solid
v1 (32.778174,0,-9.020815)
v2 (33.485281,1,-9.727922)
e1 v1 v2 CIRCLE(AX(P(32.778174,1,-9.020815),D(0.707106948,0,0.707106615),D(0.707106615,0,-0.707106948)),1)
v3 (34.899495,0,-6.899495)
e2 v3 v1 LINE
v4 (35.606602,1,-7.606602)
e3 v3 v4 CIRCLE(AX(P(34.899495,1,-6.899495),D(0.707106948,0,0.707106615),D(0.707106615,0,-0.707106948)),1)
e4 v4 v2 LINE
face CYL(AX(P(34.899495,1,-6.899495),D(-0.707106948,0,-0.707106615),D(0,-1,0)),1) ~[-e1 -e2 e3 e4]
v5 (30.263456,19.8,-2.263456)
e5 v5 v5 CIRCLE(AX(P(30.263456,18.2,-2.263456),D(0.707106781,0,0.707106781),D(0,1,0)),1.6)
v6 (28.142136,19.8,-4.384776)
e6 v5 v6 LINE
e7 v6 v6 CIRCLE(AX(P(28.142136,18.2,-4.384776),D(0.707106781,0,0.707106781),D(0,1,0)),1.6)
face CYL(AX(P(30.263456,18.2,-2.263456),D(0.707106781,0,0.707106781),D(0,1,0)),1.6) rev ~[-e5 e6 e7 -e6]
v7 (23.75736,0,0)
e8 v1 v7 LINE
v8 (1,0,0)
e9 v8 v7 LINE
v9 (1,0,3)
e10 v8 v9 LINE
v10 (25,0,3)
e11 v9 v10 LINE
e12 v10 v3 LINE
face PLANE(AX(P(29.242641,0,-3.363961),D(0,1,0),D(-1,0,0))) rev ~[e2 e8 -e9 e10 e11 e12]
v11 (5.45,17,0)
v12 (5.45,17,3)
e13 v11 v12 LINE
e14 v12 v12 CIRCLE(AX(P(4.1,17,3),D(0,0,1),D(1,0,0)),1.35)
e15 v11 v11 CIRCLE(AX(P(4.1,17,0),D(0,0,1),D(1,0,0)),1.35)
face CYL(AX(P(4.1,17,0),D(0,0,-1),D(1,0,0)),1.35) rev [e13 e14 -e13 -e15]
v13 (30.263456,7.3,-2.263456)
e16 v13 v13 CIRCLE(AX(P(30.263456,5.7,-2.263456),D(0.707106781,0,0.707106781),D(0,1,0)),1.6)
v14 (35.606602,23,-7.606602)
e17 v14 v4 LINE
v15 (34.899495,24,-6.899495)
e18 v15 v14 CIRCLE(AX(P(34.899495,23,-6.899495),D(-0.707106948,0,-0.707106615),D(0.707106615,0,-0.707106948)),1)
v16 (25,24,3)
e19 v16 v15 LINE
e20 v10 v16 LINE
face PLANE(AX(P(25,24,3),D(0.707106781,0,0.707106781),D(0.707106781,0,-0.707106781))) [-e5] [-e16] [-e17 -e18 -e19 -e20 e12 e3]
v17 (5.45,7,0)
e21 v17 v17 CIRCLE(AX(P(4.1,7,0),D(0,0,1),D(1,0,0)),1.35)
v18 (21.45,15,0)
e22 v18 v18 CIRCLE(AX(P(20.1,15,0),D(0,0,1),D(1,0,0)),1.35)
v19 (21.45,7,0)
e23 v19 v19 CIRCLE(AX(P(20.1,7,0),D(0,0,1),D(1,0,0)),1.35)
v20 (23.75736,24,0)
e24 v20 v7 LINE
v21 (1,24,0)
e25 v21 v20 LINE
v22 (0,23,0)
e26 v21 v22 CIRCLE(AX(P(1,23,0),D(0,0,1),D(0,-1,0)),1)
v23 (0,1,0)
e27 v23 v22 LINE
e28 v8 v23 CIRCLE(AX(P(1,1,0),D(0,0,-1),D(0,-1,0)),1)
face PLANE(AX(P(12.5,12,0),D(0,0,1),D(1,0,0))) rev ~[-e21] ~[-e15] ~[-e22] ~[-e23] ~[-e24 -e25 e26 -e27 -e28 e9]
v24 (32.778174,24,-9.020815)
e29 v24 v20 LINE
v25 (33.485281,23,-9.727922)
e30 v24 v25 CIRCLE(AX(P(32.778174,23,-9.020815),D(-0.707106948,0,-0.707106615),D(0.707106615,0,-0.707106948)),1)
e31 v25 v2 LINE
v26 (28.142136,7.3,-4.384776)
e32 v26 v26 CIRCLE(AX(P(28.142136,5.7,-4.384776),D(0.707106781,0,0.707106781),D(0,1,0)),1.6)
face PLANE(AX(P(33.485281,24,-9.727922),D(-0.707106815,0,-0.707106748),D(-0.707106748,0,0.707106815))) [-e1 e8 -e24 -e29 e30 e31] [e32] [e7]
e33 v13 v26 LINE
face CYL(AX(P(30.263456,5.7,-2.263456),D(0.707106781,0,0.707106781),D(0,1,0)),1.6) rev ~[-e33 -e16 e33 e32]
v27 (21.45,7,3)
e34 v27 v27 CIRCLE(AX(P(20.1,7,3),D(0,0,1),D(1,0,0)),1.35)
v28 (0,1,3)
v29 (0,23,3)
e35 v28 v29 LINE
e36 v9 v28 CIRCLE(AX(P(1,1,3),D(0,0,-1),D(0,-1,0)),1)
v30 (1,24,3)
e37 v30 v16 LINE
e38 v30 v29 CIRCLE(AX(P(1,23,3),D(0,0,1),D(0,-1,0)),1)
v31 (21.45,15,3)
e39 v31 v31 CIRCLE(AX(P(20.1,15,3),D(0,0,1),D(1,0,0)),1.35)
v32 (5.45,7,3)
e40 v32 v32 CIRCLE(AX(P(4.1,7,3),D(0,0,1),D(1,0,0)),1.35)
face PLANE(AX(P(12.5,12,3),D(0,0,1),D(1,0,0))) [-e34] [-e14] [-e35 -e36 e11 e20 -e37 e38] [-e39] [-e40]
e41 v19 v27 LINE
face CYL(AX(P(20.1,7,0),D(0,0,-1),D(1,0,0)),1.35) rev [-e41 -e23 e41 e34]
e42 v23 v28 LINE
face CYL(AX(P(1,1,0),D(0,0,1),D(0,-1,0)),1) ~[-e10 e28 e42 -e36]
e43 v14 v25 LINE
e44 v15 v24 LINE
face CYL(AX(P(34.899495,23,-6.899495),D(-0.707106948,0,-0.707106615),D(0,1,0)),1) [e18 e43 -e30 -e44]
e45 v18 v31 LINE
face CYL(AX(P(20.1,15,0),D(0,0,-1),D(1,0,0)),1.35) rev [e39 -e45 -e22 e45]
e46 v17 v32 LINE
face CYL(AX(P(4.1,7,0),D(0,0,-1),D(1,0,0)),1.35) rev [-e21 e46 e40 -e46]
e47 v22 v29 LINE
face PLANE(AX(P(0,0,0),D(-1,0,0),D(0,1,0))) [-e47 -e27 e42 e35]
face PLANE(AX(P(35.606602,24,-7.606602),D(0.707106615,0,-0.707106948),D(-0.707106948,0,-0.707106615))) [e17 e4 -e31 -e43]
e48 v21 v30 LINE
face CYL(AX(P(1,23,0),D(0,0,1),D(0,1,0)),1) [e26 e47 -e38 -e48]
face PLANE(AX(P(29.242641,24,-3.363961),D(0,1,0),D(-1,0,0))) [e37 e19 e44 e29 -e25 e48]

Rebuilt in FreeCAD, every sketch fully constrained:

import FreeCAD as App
import Part
import Sketcher
Q = App.Units.Quantity


def edges_at(feature, points):
    """Names of the edges that pass closest to the given points."""
    edges = feature.Shape.Edges
    near = lambda p: min(range(len(edges)), key=lambda i: edges[i].distToShape(Part.Vertex(*p))[0])
    return sorted({f"Edge{near(p) + 1}" for p in points})


def add_polygon(sketch, points):
    """Adds a closed chain of lines whose ends are joined by coincident constraints."""
    first, n = sketch.GeometryCount, len(points)
    for a, b in zip(points, points[1:] + points[:1]):
        sketch.addGeometry(Part.LineSegment(App.Vector(*a, 0), App.Vector(*b, 0)), False)
    for i in range(n):
        sketch.addConstraint(Sketcher.Constraint("Coincident", first + i, 2, first + (i + 1) % n, 1))

doc = App.newDocument("Part")
params = doc.addObject("Spreadsheet::Sheet", "Params")
for row, (alias, value) in enumerate([
    ("sketch1_diameter", "2.7 mm"),
    ("sketch1_width", "25 mm"),
    ("sketch1_height", "24 mm"),
    ("pad1_length", "3 mm"),
    ("sketch2_length", "15 mm"),
    ("sketch2_length2", "3 mm"),
    ("pad2_length", "24 mm"),
    ("sketch3_diameter", "3.2 mm"),
    ("fillet_radius", "1 mm"),
], start=1):
    params.set(f"A{row}", alias)
    params.set(f"B{row}", "=" + value)
    params.setAlias(f"B{row}", alias)

body = doc.addObject("PartDesign::Body", "Body")

# Sketch on XY plane
sketch1 = doc.addObject("Sketcher::SketchObject", "Sketch")
body.addObject(sketch1)
sketch1.AttachmentSupport = (doc.XY_Plane, [""])
sketch1.MapMode = "FlatFace"
add_polygon(sketch1, [(0, 24), (0, 0), (25, 0), (25, 24)])  # lines 0-3
sketch1.addGeometry(Part.Circle(App.Vector(4.1, 7, 0), App.Vector(0, 0, 1), 1.4), False)  # 4
sketch1.addGeometry(Part.Circle(App.Vector(20.1, 7, 0), App.Vector(0, 0, 1), 1.4), False)  # 5
sketch1.addGeometry(Part.Circle(App.Vector(4.1, 17, 0), App.Vector(0, 0, 1), 1.4), False)  # 6
sketch1.addGeometry(Part.Circle(App.Vector(20.1, 15, 0), App.Vector(0, 0, 1), 1.4), False)  # 7
sketch1.addConstraint(Sketcher.Constraint("Vertical", 0))
sketch1.addConstraint(Sketcher.Constraint("Horizontal", 1))
sketch1.addConstraint(Sketcher.Constraint("Vertical", 2))
sketch1.addConstraint(Sketcher.Constraint("Horizontal", 3))
sketch1.addConstraint(Sketcher.Constraint("Coincident", 0, 2, -1, 1))
sketch1.addConstraint(Sketcher.Constraint("Equal", 4, 5))
sketch1.addConstraint(Sketcher.Constraint("Equal", 5, 6))
sketch1.addConstraint(Sketcher.Constraint("Equal", 6, 7))
sketch1.addConstraint(Sketcher.Constraint("Horizontal", 4, 3, 5, 3))
sketch1.addConstraint(Sketcher.Constraint("Vertical", 4, 3, 6, 3))
sketch1.addConstraint(Sketcher.Constraint("Vertical", 5, 3, 7, 3))
sketch1.addConstraint(Sketcher.Constraint("Diameter", 4, Q("2.7 mm")))
sketch1.addConstraint(Sketcher.Constraint("DistanceX", 1, 1, 1, 2, Q("25 mm")))
sketch1.addConstraint(Sketcher.Constraint("DistanceY", 0, 2, 0, 1, Q("24 mm")))
sketch1.addConstraint(Sketcher.Constraint("DistanceY", -1, 1, 4, 3, Q("7 mm")))
sketch1.addConstraint(Sketcher.Constraint("DistanceY", -1, 1, 6, 3, Q("17 mm")))
sketch1.addConstraint(Sketcher.Constraint("DistanceY", -1, 1, 7, 3, Q("15 mm")))
sketch1.addConstraint(Sketcher.Constraint("DistanceX", 4, 3, 5, 3, Q("16 mm")))
sketch1.addConstraint(Sketcher.Constraint("DistanceX", -1, 1, 4, 3, Q("4.1 mm")))
sketch1.setExpression("Constraints[15]", "Params.sketch1_diameter")
sketch1.setExpression("Constraints[16]", "Params.sketch1_width")
sketch1.setExpression("Constraints[17]", "Params.sketch1_height")
pad1 = doc.addObject("PartDesign::Pad", "Pad")
body.addObject(pad1)
pad1.Profile = sketch1
pad1.setExpression("Length", "Params.pad1_length")

# Sketch on XZ plane
sketch2 = doc.addObject("Sketcher::SketchObject", "Sketch001")
body.addObject(sketch2)
sketch2.AttachmentSupport = (doc.XZ_Plane, [""])
sketch2.MapMode = "FlatFace"
sketch2.AttachmentOffset = App.Placement(App.Vector(0, 0, -24), App.Rotation())
add_polygon(sketch2, [(25, 3), (35.6, -7.6), (33.5, -9.7), (22.9, 0.9)])  # lines 0-3
sketch2.addConstraint(Sketcher.Constraint("Perpendicular", 0, 1))
sketch2.addConstraint(Sketcher.Constraint("Perpendicular", 1, 2))
sketch2.addConstraint(Sketcher.Constraint("Perpendicular", 2, 3))
sketch2.addConstraint(Sketcher.Constraint("Angle", 0, Q("-45 deg")))
sketch2.addConstraint(Sketcher.Constraint("Distance", 0, Q("15 mm")))
sketch2.addConstraint(Sketcher.Constraint("Distance", 1, Q("3 mm")))
sketch2.addConstraint(Sketcher.Constraint("DistanceX", -1, 1, 3, 2, Q("25 mm")))
sketch2.addConstraint(Sketcher.Constraint("DistanceY", -1, 1, 3, 2, Q("3 mm")))
sketch2.setExpression("Constraints[8]", "Params.sketch2_length")
sketch2.setExpression("Constraints[9]", "Params.sketch2_length2")
pad2 = doc.addObject("PartDesign::Pad", "Pad001")
body.addObject(pad2)
pad2.Profile = sketch2
pad2.setExpression("Length", "Params.pad2_length")

# Sketch on an angled plane
sketch3 = doc.addObject("Sketcher::SketchObject", "Sketch002")
body.addObject(sketch3)
sketch3.Placement = App.Placement(App.Vector(14, 0, 14), App.Rotation(App.Vector(0, 1, 0), App.Vector(-0.707106781, 0, 0.707106781), App.Vector(0.707106781, 0, 0.707106781), "ZXY"))
sketch3.addGeometry(Part.Circle(App.Vector(5.7, -23, 0), App.Vector(0, 0, 1), 1.6), False)
sketch3.addGeometry(Part.Circle(App.Vector(18.2, -23, 0), App.Vector(0, 0, 1), 1.6), False)
sketch3.addConstraint(Sketcher.Constraint("Equal", 0, 1))
sketch3.addConstraint(Sketcher.Constraint("Horizontal", 0, 3, 1, 3))
sketch3.addConstraint(Sketcher.Constraint("Diameter", 0, Q("3.2 mm")))
sketch3.addConstraint(Sketcher.Constraint("DistanceY", 0, 3, -1, 1, Q("23 mm")))
sketch3.addConstraint(Sketcher.Constraint("DistanceX", -1, 1, 0, 3, Q("5.7 mm")))
sketch3.addConstraint(Sketcher.Constraint("DistanceX", -1, 1, 1, 3, Q("18.2 mm")))
sketch3.setExpression("Constraints[2]", "Params.sketch3_diameter")
pocket1 = doc.addObject("PartDesign::Pocket", "Pocket")
body.addObject(pocket1)
pocket1.Profile = sketch3
pocket1.Type = "ThroughAll"
doc.recompute()

fillet = doc.addObject("PartDesign::Fillet", "Fillet")
body.addObject(fillet)
fillet.Base = (pocket1, edges_at(pocket1, [
    (34.546, 24, -8.667),
    (34.546, 0, -8.667),
    (0, 24, 1.5),
    (0, 0, 1.5),
]))
fillet.setExpression("Radius", "Params.fillet_radius")

doc.recompute()
